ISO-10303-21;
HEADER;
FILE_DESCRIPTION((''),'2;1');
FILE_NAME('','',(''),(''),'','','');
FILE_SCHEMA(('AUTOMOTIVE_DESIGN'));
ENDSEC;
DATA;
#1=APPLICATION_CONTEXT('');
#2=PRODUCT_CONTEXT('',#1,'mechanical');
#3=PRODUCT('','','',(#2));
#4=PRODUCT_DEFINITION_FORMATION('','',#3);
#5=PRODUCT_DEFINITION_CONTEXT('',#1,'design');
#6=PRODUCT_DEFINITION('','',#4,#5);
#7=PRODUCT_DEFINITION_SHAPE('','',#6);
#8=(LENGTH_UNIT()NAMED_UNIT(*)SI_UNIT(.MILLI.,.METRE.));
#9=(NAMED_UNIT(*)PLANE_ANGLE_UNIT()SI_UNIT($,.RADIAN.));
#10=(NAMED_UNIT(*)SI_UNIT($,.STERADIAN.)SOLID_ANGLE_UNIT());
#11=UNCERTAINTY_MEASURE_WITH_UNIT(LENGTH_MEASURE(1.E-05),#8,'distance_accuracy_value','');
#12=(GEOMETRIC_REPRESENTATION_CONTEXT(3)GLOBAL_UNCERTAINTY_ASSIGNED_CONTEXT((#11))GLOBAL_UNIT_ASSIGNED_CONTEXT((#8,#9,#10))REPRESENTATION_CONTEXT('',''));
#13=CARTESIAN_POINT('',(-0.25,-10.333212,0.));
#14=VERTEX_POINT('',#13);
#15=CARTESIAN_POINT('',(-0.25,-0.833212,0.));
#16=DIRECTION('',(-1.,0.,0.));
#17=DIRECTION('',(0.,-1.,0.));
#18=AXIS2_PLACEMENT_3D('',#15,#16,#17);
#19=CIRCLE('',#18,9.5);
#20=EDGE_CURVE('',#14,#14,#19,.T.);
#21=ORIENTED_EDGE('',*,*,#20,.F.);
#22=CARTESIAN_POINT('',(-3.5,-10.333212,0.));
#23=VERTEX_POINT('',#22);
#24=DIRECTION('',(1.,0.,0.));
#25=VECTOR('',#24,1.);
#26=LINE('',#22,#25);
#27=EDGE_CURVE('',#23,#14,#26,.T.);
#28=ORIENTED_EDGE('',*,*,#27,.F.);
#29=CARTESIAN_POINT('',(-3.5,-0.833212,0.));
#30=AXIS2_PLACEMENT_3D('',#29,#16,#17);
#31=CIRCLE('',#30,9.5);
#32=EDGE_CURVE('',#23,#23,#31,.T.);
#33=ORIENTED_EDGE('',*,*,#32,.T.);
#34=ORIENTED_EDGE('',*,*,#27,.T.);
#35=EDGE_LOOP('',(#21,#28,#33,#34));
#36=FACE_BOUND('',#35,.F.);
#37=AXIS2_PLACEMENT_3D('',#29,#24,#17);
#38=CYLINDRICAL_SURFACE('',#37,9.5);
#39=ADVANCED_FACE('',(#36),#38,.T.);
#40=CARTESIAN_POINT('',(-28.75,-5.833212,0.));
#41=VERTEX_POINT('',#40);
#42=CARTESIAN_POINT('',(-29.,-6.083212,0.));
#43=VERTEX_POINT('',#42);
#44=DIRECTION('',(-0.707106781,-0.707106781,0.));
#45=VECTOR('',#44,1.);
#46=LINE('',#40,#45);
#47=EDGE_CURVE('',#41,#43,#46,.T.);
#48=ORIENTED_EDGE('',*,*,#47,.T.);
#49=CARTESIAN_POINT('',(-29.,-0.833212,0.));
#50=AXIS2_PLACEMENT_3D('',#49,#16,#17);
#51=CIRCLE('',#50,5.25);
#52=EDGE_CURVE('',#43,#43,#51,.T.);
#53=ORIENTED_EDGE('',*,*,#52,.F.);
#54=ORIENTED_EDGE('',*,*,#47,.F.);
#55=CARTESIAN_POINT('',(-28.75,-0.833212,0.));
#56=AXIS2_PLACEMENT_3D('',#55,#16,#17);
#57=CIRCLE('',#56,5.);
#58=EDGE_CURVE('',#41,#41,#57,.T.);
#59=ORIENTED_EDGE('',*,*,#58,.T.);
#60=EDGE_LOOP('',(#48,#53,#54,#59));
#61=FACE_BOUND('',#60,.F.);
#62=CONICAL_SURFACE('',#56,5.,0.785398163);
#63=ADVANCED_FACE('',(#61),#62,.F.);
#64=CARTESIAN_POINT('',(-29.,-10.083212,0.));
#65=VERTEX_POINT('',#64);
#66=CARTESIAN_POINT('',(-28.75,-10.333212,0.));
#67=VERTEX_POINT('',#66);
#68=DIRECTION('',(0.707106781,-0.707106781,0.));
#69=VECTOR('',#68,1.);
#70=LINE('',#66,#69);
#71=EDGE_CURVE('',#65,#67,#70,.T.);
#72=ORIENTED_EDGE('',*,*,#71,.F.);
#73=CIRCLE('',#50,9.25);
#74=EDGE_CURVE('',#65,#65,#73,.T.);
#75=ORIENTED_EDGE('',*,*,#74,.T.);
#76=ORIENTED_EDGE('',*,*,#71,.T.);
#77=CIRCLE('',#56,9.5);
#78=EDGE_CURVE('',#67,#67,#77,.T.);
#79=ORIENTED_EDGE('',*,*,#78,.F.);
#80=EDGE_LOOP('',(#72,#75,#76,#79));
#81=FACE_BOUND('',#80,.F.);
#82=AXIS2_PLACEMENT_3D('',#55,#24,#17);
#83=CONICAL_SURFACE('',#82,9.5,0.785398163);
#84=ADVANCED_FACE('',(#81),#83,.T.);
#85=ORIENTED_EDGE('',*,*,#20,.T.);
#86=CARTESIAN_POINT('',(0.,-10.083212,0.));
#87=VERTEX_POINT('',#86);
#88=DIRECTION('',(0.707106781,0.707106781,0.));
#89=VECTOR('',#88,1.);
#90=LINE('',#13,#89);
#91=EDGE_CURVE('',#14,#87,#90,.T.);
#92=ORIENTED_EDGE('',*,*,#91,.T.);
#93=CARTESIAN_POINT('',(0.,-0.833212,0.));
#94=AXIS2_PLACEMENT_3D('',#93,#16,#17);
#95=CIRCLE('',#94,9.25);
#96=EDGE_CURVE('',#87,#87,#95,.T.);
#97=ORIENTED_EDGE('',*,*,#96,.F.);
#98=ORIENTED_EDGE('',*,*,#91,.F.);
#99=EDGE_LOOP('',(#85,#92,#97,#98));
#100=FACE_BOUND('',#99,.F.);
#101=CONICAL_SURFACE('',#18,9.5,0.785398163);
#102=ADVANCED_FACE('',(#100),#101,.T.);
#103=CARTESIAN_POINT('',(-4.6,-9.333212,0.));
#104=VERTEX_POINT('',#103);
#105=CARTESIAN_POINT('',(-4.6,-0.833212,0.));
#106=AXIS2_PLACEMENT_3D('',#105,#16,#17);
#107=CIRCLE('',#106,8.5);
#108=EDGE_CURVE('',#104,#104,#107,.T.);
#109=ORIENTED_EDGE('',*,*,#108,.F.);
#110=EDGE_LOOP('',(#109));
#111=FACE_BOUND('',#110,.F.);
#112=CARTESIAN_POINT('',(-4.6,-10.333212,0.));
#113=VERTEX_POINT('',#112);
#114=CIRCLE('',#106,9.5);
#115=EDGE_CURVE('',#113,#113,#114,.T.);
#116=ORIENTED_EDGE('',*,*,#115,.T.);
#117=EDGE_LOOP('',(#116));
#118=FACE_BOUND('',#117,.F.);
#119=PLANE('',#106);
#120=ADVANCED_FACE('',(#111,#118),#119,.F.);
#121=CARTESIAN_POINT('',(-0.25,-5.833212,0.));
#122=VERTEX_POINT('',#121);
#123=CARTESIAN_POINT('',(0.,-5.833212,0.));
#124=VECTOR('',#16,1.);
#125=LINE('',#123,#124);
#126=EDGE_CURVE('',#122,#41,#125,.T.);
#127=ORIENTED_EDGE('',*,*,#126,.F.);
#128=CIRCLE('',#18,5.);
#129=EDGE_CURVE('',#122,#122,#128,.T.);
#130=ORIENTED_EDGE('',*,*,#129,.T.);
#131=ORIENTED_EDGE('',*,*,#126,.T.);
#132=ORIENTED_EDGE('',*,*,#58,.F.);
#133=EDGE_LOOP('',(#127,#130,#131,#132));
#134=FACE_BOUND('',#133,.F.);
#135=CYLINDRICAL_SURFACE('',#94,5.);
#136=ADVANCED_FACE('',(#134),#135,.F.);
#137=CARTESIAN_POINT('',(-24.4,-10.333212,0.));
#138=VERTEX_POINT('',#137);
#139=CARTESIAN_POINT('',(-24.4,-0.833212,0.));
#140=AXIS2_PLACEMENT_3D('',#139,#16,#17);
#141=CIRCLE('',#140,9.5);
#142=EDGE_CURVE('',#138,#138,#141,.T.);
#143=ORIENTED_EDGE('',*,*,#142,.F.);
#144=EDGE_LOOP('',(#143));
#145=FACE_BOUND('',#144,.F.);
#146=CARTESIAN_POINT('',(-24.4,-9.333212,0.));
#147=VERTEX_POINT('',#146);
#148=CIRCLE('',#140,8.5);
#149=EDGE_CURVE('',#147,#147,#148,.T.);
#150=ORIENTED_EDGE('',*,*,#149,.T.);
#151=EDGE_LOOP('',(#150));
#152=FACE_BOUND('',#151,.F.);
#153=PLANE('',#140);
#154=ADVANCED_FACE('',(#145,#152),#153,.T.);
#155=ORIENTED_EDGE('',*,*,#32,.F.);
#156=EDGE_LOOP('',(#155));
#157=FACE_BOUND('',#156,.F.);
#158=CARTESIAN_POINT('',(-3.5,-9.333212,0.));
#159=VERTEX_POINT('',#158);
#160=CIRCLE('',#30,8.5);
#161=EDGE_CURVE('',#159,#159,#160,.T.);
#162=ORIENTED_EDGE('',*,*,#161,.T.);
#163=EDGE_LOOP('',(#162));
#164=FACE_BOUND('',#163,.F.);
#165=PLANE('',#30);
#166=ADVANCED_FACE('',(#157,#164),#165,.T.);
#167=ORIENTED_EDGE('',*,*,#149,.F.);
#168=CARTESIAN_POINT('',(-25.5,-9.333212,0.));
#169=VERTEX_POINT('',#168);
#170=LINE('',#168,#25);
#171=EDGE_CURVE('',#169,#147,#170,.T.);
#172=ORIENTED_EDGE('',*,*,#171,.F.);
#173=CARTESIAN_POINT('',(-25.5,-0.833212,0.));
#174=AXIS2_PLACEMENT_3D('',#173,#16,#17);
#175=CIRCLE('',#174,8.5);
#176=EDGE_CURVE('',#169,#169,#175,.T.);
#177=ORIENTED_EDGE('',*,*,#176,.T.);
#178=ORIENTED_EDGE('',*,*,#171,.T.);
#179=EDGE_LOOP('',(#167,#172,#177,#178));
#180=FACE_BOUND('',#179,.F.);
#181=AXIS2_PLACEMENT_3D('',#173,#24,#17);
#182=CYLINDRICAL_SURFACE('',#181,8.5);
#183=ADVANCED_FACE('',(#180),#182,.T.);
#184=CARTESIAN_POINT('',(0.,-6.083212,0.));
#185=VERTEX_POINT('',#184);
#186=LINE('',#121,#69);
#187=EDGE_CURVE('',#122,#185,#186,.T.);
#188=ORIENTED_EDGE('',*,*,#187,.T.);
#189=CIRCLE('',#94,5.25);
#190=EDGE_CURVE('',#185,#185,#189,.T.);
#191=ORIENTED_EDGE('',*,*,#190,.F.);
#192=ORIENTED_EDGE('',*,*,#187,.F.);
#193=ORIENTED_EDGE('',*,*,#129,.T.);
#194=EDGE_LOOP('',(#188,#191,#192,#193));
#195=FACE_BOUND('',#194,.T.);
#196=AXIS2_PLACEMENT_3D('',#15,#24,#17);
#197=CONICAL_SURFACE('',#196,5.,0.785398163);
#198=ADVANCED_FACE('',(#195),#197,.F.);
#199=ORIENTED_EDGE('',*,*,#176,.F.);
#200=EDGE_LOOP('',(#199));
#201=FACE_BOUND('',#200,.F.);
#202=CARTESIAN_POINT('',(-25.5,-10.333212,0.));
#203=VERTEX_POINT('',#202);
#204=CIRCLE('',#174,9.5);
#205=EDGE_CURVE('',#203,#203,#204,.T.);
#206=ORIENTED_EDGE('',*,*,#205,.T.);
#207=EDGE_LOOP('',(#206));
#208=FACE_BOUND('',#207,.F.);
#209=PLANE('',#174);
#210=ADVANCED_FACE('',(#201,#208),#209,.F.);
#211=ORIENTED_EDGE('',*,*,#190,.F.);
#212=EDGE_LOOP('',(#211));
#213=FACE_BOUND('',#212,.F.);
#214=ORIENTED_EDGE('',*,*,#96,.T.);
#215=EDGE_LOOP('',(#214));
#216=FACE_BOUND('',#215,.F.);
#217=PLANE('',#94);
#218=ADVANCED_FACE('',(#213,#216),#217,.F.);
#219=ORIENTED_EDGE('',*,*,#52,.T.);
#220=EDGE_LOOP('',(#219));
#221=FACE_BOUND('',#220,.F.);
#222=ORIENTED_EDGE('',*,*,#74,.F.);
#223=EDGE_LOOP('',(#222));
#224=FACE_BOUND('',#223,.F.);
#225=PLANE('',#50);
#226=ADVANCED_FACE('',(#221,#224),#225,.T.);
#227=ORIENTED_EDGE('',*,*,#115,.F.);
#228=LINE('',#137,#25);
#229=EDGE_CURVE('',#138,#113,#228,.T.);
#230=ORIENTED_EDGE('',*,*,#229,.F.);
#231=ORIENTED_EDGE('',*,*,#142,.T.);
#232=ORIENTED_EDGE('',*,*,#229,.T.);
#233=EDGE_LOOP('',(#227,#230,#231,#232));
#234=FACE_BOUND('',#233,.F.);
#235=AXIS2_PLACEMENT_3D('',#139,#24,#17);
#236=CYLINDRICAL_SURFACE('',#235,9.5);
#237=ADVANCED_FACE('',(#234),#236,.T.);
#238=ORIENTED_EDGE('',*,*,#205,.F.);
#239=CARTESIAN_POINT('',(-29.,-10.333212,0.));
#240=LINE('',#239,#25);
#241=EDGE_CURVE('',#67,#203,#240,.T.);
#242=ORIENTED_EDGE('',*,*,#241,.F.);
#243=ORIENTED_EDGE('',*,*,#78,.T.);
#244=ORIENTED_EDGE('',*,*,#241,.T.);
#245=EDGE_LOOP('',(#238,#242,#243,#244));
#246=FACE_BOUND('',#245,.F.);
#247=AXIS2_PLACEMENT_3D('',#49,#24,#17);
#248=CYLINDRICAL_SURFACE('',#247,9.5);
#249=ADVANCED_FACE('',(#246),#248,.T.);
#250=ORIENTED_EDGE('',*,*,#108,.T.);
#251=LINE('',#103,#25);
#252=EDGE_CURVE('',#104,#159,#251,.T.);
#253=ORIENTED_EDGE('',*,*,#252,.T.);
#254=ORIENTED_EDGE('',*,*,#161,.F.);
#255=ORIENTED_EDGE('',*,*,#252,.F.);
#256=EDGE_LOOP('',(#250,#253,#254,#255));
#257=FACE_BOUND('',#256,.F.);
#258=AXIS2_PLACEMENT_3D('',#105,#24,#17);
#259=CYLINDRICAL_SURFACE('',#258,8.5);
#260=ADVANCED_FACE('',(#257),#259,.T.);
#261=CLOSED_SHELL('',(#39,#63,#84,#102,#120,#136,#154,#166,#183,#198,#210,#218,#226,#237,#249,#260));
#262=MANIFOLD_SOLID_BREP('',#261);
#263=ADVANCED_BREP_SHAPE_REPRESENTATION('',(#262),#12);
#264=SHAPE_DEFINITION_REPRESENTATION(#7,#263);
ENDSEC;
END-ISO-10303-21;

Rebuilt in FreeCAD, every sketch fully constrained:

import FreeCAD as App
import Part
import Sketcher


def edges_at(feature, points):
    """Names of the edges that pass closest to the given points."""
    edges = feature.Shape.Edges
    near = lambda p: min(range(len(edges)), key=lambda i: edges[i].distToShape(Part.Vertex(*p))[0])
    return sorted({f"Edge{near(p) + 1}" for p in points})


def add_polygon(sketch, points):
    """Adds a closed chain of lines whose ends are joined by coincident constraints."""
    first, n = sketch.GeometryCount, len(points)
    for a, b in zip(points, points[1:] + points[:1]):
        sketch.addGeometry(Part.LineSegment(App.Vector(*a, 0), App.Vector(*b, 0)), False)
    for i in range(n):
        sketch.addConstraint(Sketcher.Constraint("Coincident", first + i, 2, first + (i + 1) % n, 1))

doc = App.newDocument("Part")
params = doc.addObject("Spreadsheet::Sheet", "Params")
for row, (alias, value) in enumerate([
    ("sketch1_width", "29 mm"),
    ("sketch1_height", "1 mm"),
    ("sketch1_width2", "3.5 mm"),
    ("sketch1_width3", "1.1 mm"),
    ("sketch1_height2", "4.5 mm"),
    ("revolution_angle", "360 deg"),
    ("chamfer_size", "0.25 mm"),
], start=1):
    params.set(f"A{row}", alias)
    params.set(f"B{row}", "=" + value)
    params.setAlias(f"B{row}", alias)

body = doc.addObject("PartDesign::Body", "Body")

# Sketch on XY plane
sketch1 = body.newObject("Sketcher::SketchObject", "Sketch")
sketch1.AttachmentSupport = (doc.getObject("XY_Plane"), [""])
sketch1.MapMode = "FlatFace"
add_polygon(sketch1, [(0, -5.833212), (-29, -5.833212), (-29, -10.333212), (-25.5, -10.333212), (-25.5, -9.333212), (-24.4, -9.333212), (-24.4, -10.333212), (-4.6, -10.333212), (-4.6, -9.333212), (-3.5, -9.333212), (-3.5, -10.333212), (0, -10.333212)])  # lines 0-11
sketch1.addGeometry(Part.LineSegment(App.Vector(0, -0.833212, 0), App.Vector(-29, -0.833212, 0)), True)  # axis
sketch1.addConstraint([
    Sketcher.Constraint("Horizontal", 0),
    Sketcher.Constraint("Vertical", 1),
    Sketcher.Constraint("Horizontal", 2),
    Sketcher.Constraint("Vertical", 3),
    Sketcher.Constraint("Horizontal", 4),
    Sketcher.Constraint("Vertical", 5),
    Sketcher.Constraint("Horizontal", 6),
    Sketcher.Constraint("Vertical", 7),
    Sketcher.Constraint("Horizontal", 8),
    Sketcher.Constraint("Vertical", 9),
    Sketcher.Constraint("Horizontal", 10),
    Sketcher.Constraint("Vertical", 11),
    Sketcher.Constraint("Horizontal", 12),
    Sketcher.Constraint("PointOnObject", 10, 2, -2),
    Sketcher.Constraint("PointOnObject", 12, 1, -2),
    Sketcher.Constraint("Horizontal", 2, 2, 5, 2),
    Sketcher.Constraint("Horizontal", 4, 2, 7, 2),
    Sketcher.Constraint("Horizontal", 6, 2, 9, 2),
    Sketcher.Constraint("Vertical", 1, 2, 12, 2),
    Sketcher.Constraint("Equal", 4, 8),
    Sketcher.Constraint("Equal", 2, 10),
    Sketcher.Constraint("DistanceX", 0, 2, 0, 1, 29.0),
    Sketcher.Constraint("DistanceY", 3, 1, 3, 2, 1.0),
    Sketcher.Constraint("DistanceX", 2, 1, 2, 2, 3.5),
    Sketcher.Constraint("DistanceX", 4, 1, 4, 2, 1.1),
    Sketcher.Constraint("DistanceY", 1, 2, 1, 1, 4.5),
    Sketcher.Constraint("DistanceY", 11, 2, 12, 1, 5.0),
    Sketcher.Constraint("DistanceY", 0, 2, -1, 1, 5.833212),
])
sketch1.setExpression("Constraints[33]", "Params.sketch1_width")
sketch1.setExpression("Constraints[34]", "Params.sketch1_height")
sketch1.setExpression("Constraints[35]", "Params.sketch1_width2")
sketch1.setExpression("Constraints[36]", "Params.sketch1_width3")
sketch1.setExpression("Constraints[37]", "Params.sketch1_height2")
revolution = body.newObject("PartDesign::Revolution", "Revolution")
revolution.Profile = sketch1
revolution.ReferenceAxis = (sketch1, ["Axis0"])
revolution.setExpression("Angle", "Params.revolution_angle")
doc.recompute()

chamfer = body.newObject("PartDesign::Chamfer", "Chamfer")
chamfer.Base = (revolution, edges_at(revolution, [
    (0, 8.667, 0),
    (-29, 8.667, 0),
    (-29, 4.167, 0),
    (0, 4.167, 0),
]))
chamfer.setExpression("Size", "Params.chamfer_size")

doc.recompute()
